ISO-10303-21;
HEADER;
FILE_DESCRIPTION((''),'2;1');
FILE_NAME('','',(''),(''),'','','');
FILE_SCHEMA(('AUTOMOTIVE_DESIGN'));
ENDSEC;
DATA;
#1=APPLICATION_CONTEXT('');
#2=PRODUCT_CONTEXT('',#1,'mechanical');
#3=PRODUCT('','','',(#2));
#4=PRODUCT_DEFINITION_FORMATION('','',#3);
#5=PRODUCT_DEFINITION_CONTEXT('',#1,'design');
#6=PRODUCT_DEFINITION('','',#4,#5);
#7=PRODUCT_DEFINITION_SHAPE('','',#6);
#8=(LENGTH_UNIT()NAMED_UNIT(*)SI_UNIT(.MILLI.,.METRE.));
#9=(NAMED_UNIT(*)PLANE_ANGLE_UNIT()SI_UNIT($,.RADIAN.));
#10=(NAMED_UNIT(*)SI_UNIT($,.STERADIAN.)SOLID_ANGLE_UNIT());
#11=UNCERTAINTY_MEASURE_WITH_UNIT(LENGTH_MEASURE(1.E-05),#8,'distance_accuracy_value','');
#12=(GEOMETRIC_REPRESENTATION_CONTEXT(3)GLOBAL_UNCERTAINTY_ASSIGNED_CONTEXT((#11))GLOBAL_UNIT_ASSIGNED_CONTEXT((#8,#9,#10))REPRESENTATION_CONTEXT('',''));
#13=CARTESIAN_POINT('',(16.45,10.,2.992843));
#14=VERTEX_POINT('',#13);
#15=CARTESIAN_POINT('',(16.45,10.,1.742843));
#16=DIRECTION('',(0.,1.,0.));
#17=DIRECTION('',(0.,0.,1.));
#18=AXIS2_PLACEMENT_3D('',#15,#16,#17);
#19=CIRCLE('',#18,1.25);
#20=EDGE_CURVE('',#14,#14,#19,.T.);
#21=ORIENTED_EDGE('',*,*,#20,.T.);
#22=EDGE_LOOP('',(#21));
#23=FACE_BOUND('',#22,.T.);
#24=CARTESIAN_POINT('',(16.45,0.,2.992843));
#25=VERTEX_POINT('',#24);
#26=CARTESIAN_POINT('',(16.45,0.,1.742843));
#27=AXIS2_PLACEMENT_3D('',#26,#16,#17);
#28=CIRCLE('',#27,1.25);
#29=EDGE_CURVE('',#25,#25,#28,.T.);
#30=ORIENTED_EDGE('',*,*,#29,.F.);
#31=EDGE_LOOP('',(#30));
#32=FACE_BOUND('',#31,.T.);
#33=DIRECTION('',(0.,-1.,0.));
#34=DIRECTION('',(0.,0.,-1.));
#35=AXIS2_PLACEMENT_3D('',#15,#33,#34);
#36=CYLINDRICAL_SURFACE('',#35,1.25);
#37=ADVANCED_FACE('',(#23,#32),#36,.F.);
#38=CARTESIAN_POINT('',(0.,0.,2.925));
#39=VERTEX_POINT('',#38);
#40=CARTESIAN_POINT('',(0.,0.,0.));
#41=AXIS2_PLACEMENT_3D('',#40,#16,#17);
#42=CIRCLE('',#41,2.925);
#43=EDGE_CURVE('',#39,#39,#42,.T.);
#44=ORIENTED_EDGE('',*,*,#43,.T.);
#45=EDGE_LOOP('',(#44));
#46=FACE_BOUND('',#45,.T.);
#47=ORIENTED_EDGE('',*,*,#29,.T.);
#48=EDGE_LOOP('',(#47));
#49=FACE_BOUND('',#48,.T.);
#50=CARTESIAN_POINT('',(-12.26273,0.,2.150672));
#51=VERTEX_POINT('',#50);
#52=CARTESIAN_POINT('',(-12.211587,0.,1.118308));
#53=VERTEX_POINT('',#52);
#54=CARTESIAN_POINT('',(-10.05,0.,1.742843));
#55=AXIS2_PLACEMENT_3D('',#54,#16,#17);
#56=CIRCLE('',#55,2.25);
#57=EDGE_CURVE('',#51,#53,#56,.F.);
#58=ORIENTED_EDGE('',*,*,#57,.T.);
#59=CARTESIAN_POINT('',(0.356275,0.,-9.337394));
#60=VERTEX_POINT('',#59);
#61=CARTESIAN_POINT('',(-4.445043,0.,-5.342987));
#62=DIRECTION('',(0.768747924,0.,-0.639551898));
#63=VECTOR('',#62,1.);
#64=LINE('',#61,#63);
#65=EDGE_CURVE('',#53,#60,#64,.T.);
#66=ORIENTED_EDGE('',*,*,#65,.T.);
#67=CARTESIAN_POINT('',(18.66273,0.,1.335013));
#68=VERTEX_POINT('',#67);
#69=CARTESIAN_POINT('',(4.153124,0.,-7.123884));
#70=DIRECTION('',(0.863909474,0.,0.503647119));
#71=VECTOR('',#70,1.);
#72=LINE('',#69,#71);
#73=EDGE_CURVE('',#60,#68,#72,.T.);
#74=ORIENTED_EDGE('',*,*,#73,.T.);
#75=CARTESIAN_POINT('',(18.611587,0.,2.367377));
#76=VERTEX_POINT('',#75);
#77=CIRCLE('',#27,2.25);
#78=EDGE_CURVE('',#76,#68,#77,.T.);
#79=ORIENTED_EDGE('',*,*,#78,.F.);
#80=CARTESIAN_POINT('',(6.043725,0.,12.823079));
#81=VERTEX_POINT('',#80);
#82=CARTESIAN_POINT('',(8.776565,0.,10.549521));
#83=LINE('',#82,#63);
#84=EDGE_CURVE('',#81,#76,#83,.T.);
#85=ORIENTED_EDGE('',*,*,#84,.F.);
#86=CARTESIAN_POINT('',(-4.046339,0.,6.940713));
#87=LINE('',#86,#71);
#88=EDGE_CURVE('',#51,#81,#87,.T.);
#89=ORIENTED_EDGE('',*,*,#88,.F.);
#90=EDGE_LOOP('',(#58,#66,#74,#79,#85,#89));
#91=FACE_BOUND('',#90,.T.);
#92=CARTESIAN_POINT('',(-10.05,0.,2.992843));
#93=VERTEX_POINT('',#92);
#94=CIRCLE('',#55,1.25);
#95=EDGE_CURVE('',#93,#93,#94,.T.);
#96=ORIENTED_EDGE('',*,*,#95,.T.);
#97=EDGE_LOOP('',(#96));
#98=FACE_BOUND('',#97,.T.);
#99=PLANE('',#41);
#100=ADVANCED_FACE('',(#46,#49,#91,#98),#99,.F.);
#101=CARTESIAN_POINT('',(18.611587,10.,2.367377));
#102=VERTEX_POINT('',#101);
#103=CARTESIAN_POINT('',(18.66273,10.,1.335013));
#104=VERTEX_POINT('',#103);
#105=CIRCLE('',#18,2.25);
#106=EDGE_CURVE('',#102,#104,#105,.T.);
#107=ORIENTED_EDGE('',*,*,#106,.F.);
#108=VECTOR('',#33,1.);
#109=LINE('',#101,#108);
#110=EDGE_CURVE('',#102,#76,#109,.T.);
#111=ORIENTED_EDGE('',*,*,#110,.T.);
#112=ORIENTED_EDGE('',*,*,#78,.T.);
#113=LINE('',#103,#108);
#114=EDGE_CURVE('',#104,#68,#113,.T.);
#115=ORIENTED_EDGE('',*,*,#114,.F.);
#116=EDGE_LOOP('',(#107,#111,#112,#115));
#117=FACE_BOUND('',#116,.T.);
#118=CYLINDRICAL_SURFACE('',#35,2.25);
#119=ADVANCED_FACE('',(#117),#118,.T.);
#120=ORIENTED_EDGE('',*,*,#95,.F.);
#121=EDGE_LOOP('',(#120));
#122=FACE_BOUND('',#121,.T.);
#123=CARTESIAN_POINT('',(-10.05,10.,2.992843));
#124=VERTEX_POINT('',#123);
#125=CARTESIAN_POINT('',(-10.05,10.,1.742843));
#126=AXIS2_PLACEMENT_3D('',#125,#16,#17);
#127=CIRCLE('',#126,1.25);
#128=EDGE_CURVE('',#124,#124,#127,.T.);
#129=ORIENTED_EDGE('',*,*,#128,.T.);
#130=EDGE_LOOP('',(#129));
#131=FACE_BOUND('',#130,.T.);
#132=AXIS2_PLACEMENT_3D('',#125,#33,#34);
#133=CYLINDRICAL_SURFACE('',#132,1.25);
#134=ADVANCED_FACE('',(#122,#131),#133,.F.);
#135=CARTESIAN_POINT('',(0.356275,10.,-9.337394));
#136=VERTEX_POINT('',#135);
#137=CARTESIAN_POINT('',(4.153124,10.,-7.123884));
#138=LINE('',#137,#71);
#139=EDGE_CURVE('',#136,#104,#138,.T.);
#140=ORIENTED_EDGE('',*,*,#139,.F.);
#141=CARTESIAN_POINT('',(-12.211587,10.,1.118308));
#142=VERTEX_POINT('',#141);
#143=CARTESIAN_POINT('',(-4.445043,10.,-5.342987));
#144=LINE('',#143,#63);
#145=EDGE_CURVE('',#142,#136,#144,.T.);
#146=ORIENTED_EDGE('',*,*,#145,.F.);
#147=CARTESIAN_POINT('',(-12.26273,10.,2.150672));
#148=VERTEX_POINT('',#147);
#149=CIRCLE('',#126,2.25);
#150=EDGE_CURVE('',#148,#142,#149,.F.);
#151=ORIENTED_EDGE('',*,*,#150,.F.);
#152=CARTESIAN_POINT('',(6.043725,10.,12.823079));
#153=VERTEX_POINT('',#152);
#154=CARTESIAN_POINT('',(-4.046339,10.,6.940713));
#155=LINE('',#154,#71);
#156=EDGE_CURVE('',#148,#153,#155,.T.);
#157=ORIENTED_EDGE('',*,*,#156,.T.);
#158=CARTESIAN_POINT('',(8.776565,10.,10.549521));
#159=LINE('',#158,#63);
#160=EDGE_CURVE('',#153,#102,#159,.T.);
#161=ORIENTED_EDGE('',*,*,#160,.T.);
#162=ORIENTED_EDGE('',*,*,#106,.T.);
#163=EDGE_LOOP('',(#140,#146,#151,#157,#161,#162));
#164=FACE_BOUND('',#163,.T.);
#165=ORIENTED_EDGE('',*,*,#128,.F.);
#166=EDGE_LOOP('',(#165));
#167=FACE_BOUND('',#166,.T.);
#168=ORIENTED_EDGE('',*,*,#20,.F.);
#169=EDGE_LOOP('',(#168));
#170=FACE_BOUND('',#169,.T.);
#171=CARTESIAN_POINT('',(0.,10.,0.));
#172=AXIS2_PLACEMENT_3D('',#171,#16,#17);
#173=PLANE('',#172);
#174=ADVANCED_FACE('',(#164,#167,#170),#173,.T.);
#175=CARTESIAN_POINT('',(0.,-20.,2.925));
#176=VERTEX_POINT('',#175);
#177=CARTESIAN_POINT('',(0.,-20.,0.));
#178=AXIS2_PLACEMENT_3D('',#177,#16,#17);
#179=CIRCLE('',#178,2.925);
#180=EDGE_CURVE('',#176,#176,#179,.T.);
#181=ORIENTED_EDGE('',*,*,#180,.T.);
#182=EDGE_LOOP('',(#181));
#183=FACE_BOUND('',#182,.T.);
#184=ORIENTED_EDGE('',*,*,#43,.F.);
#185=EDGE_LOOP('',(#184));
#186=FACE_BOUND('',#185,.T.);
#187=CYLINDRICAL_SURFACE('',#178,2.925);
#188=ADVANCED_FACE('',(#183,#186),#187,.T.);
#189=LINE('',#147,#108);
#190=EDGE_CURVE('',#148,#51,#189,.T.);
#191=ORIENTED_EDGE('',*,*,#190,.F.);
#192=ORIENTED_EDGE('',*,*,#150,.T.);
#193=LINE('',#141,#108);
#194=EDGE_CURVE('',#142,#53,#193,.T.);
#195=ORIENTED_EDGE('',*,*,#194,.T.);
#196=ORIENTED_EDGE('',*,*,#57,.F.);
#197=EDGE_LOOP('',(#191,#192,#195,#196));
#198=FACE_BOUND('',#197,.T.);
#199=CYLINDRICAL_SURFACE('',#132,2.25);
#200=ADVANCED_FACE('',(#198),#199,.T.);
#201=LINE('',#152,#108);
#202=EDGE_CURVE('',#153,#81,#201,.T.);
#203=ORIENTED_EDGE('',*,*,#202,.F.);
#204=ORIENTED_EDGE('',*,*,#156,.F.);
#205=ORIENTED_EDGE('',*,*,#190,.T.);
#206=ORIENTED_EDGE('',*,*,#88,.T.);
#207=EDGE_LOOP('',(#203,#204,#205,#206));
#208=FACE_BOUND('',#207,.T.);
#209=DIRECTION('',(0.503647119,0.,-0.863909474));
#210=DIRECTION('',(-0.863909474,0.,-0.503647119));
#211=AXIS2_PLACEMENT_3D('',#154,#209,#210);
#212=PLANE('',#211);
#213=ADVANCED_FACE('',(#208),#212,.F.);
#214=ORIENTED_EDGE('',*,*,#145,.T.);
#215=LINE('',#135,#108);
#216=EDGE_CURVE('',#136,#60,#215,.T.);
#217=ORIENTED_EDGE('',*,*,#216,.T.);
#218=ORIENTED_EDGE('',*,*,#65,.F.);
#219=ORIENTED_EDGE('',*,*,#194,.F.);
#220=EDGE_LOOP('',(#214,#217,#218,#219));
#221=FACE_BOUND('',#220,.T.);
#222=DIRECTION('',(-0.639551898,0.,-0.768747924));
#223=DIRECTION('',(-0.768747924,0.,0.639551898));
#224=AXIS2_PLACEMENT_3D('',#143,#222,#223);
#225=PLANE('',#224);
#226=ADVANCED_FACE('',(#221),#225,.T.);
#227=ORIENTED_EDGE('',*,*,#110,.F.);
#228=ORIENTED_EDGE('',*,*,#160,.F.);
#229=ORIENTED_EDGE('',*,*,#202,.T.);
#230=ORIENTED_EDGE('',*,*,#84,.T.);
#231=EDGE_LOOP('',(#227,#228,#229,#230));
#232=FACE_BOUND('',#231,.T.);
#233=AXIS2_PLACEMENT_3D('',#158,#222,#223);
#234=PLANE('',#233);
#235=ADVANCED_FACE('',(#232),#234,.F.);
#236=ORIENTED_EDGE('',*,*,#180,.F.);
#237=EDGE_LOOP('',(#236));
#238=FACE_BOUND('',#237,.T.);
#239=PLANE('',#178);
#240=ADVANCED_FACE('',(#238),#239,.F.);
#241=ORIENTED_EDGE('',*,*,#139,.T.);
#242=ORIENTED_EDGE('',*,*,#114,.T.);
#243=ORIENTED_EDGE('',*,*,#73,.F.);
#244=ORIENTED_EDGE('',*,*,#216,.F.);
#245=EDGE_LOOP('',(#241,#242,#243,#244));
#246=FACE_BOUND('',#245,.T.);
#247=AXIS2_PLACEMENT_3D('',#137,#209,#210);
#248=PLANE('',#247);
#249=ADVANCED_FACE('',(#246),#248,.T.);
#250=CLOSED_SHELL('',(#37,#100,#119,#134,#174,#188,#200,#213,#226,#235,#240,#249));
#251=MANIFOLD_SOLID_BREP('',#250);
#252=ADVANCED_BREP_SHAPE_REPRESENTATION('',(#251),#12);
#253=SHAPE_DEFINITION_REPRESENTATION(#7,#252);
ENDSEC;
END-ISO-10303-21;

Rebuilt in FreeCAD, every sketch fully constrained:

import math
import FreeCAD as App
import Part
import Sketcher
from FreeCAD import Vector

doc = App.newDocument("Part")
params = doc.addObject("Spreadsheet::Sheet", "Params")
for row, (alias, value) in enumerate([
    ("sketch1_diameter", "2.5 mm"),
    ("sketch1_radius", "2.25 mm"),
    ("pad1_length", "10 mm"),
    ("pad2_length", "20 mm"),
], start=1):
    params.set(f"A{row}", alias)
    params.set(f"B{row}", "=" + value)
    params.setAlias(f"B{row}", alias)

body = doc.addObject("PartDesign::Body", "Body")

# Sketch on XZ plane
sketch1 = body.newObject("Sketcher::SketchObject", "Sketch")
sketch1.AttachmentSupport = (doc.getObject("XZ_Plane"), [""])
sketch1.MapMode = "FlatFace"
sketch1.addGeometry([
    Part.LineSegment(Vector(0.356275, -9.337394, 0), Vector(-12.211587, 1.118308, 0)),  # 0
    Part.ArcOfCircle(Part.Circle(Vector(-10.05, 1.742843, 0), Vector(0, 0, 1), 2.25), math.radians(169.556982), math.radians(196.11527)),  # 1
    Part.LineSegment(Vector(-12.26273, 2.150672, 0), Vector(6.043725, 12.823079, 0)),  # 2
    Part.LineSegment(Vector(6.043725, 12.823079, 0), Vector(18.611587, 2.367377, 0)),  # 3
    Part.ArcOfCircle(Part.Circle(Vector(16.45, 1.742843, 0), Vector(0, 0, 1), 2.25), math.radians(-10.443018), math.radians(16.11527)),  # 4
    Part.LineSegment(Vector(18.66273, 1.335013, 0), Vector(0.356275, -9.337394, 0)),  # 5
    Part.Circle(Vector(-10.05, 1.742843, 0), Vector(0, 0, 1), 1.25),  # 6
    Part.Circle(Vector(16.45, 1.742843, 0), Vector(0, 0, 1), 1.25),  # 7
], False)
sketch1.addConstraint([
    Sketcher.Constraint("Coincident", 0, 2, 1, 2),
    Sketcher.Constraint("Coincident", 1, 1, 2, 1),
    Sketcher.Constraint("Coincident", 2, 2, 3, 1),
    Sketcher.Constraint("Coincident", 3, 2, 4, 2),
    Sketcher.Constraint("Coincident", 4, 1, 5, 1),
    Sketcher.Constraint("Coincident", 5, 2, 0, 1),
    Sketcher.Constraint("Coincident", 6, 3, 1, 3),
    Sketcher.Constraint("Coincident", 7, 3, 4, 3),
    Sketcher.Constraint("Equal", 1, 4),
    Sketcher.Constraint("Equal", 6, 7),
    Sketcher.Constraint("Parallel", 0, 3),
    Sketcher.Constraint("Parallel", 2, 5),
    Sketcher.Constraint("Horizontal", 1, 3, 4, 3),
    Sketcher.Constraint("Equal", 0, 3),
    Sketcher.Constraint("Equal", 2, 5),
    Sketcher.Constraint("Diameter", 6, 2.5),
    Sketcher.Constraint("Radius", 1, 2.25),
    Sketcher.Constraint("DistanceX", 1, 3, 4, 3, 26.5),
    Sketcher.Constraint("DistanceX", 1, 3, -1, 1, 10.05),
    Sketcher.Constraint("Distance", 0, 16.348482),
    Sketcher.Constraint("DistanceY", -1, 1, 0, 2, 1.118308),
    Sketcher.Constraint("DistanceX", 1, 1, -1, 1, 12.26273),
    Sketcher.Constraint("DistanceY", -1, 1, 2, 2, 12.823079),
    Sketcher.Constraint("DistanceX", 2, 2, 3, 2, 12.567861),
])
sketch1.setExpression("Constraints[15]", "Params.sketch1_diameter")
sketch1.setExpression("Constraints[16]", "Params.sketch1_radius")
pad1 = body.newObject("PartDesign::Pad", "Pad")
pad1.Profile = sketch1
pad1.setExpression("Length", "Params.pad1_length")
pad1.Reversed = True

# Sketch on XZ plane
sketch2 = body.newObject("Sketcher::SketchObject", "Sketch001")
sketch2.AttachmentSupport = (doc.getObject("XZ_Plane"), [""])
sketch2.MapMode = "FlatFace"
sketch2.addGeometry([
    Part.ArcOfCircle(Part.Circle(Vector(0, 0, 0), Vector(0, 0, 1), 2.925), math.radians(143.427207), math.radians(360)),
    Part.ArcOfCircle(Part.Circle(Vector(0, 0, 0), Vector(0, 0, 1), 2.925), math.radians(36.572793), math.radians(143.427207)),
    Part.ArcOfCircle(Part.Circle(Vector(0, 0, 0), Vector(0, 0, 1), 2.925), math.radians(0), math.radians(36.572793)),
], False)
sketch2.addConstraint([
    Sketcher.Constraint("Tangent", 0, 1, 1, 2),
    Sketcher.Constraint("Tangent", 1, 1, 2, 2),
    Sketcher.Constraint("Tangent", 2, 1, 0, 2),
    Sketcher.Constraint("Coincident", 0, 3, -1, 1),
    Sketcher.Constraint("PointOnObject", 2, 1, -1),
    Sketcher.Constraint("Horizontal", 0, 1, 1, 1),
    Sketcher.Constraint("Radius", 0, 2.925),
    Sketcher.Constraint("DistanceX", 0, 1, -1, 1, 2.349069),
])
pad2 = body.newObject("PartDesign::Pad", "Pad001")
pad2.Profile = sketch2
pad2.setExpression("Length", "Params.pad2_length")

doc.recompute()
